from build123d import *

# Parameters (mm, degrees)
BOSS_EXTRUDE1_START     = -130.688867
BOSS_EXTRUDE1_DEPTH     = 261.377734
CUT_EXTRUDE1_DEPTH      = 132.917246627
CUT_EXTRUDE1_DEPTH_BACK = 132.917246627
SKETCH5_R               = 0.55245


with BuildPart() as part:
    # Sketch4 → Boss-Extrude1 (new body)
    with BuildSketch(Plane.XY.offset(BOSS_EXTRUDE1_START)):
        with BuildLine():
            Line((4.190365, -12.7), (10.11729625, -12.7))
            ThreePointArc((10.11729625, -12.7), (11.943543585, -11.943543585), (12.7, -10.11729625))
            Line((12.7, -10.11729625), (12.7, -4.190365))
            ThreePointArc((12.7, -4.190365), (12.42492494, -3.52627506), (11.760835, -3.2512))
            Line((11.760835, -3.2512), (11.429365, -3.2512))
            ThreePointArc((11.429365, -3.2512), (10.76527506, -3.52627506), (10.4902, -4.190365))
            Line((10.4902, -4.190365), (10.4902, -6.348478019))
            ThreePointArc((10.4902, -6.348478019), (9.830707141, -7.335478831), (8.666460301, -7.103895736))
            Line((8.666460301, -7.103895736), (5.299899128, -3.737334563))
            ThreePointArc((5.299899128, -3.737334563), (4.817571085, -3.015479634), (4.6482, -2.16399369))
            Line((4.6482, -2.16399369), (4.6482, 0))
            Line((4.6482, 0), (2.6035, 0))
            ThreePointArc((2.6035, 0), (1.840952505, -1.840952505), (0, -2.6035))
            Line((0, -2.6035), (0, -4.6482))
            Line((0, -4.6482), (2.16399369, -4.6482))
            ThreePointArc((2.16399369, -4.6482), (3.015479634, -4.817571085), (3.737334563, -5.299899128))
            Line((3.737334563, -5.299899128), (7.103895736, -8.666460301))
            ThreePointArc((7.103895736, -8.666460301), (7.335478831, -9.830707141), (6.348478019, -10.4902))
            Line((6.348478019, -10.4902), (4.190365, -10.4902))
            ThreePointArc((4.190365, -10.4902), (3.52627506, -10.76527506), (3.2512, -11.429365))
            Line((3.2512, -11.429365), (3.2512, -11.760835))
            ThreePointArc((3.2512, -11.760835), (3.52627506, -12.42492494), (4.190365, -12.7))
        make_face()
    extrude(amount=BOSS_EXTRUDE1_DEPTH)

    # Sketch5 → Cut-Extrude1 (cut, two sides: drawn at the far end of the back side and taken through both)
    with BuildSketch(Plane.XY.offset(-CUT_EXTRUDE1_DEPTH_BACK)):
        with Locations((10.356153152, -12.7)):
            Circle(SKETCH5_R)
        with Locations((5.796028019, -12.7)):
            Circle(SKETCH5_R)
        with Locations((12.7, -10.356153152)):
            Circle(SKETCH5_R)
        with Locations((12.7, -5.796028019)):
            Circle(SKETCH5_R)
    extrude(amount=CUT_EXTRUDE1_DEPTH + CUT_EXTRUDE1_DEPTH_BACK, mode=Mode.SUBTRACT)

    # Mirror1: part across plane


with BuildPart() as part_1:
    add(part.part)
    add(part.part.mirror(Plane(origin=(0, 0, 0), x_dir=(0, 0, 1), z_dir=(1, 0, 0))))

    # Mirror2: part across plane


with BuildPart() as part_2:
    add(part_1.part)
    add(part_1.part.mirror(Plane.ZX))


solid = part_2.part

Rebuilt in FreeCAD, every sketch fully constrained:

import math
import FreeCAD as App
import Part
import Sketcher
from FreeCAD import Vector
Q = App.Units.Quantity

doc = App.newDocument("Part")
params = doc.addObject("Spreadsheet::Sheet", "Params")
for row, (alias, value) in enumerate([
    ("pad1_length", "261.377734 mm"),
], start=1):
    params.set(f"A{row}", alias)
    params.set(f"B{row}", "=" + value)
    params.setAlias(f"B{row}", alias)

body = doc.addObject("PartDesign::Body", "Body")

# Sketch on XY plane
sketch1 = body.newObject("Sketcher::SketchObject", "Sketch")
sketch1.AttachmentSupport = (doc.getObject("XY_Plane"), [""])
sketch1.MapMode = "FlatFace"
sketch1.AttachmentOffset = App.Placement(Vector(0, 0, -130.688867), App.Rotation())
sketch1.addGeometry([
    Part.LineSegment(Vector(4.19, -12.7, 0), Vector(10.12, -12.7, 0)),  # 0
    Part.ArcOfCircle(Part.Circle(Vector(10.12, -10.12, 0), Vector(0, 0, 1), 2.58), math.radians(-90), math.radians(0)),  # 1
    Part.LineSegment(Vector(12.7, -10.12, 0), Vector(12.7, -4.19, 0)),  # 2
    Part.ArcOfCircle(Part.Circle(Vector(11.76, -4.19, 0), Vector(0, 0, 1), 0.94), math.radians(0), math.radians(90)),  # 3
    Part.LineSegment(Vector(11.76, -3.25, 0), Vector(11.43, -3.25, 0)),  # 4
    Part.ArcOfCircle(Part.Circle(Vector(11.43, -4.19, 0), Vector(0, 0, 1), 0.94), math.radians(90), math.radians(180)),  # 5
    Part.LineSegment(Vector(10.49, -4.19, 0), Vector(10.49, -6.35, 0)),  # 6
    Part.ArcOfCircle(Part.Circle(Vector(9.42, -6.35, 0), Vector(0, 0, 1), 1.07), math.radians(-135), math.radians(0)),  # 7
    Part.LineSegment(Vector(8.67, -7.1, 0), Vector(5.3, -3.74, 0)),  # 8
    Part.ArcOfCircle(Part.Circle(Vector(6.87, -2.16, 0), Vector(0, 0, 1), 2.23), math.radians(-180), math.radians(-135)),  # 9
    Part.LineSegment(Vector(4.65, -2.16, 0), Vector(4.65, 0, 0)),  # 10
    Part.LineSegment(Vector(4.65, 0, 0), Vector(2.6, 0, 0)),  # 11
    Part.ArcOfCircle(Part.Circle(Vector(0, 0, 0), Vector(0, 0, 1), 2.6), math.radians(-90), math.radians(0)),  # 12
    Part.LineSegment(Vector(0, -2.6, 0), Vector(0, -4.65, 0)),  # 13
    Part.LineSegment(Vector(0, -4.65, 0), Vector(2.16, -4.65, 0)),  # 14
    Part.ArcOfCircle(Part.Circle(Vector(2.16, -6.87, 0), Vector(0, 0, 1), 2.23), math.radians(45), math.radians(90)),  # 15
    Part.LineSegment(Vector(3.74, -5.3, 0), Vector(7.1, -8.67, 0)),  # 16
    Part.ArcOfCircle(Part.Circle(Vector(6.35, -9.42, 0), Vector(0, 0, 1), 1.07), math.radians(-90), math.radians(45)),  # 17
    Part.LineSegment(Vector(6.35, -10.49, 0), Vector(4.19, -10.49, 0)),  # 18
    Part.ArcOfCircle(Part.Circle(Vector(4.19, -11.43, 0), Vector(0, 0, 1), 0.94), math.radians(90), math.radians(180)),  # 19
    Part.LineSegment(Vector(3.25, -11.43, 0), Vector(3.25, -11.76, 0)),  # 20
    Part.ArcOfCircle(Part.Circle(Vector(4.19, -11.76, 0), Vector(0, 0, 1), 0.94), math.radians(-180), math.radians(-90)),  # 21
], False)
sketch1.addConstraint([
    Sketcher.Constraint("Tangent", 0, 2, 1, 1),
    Sketcher.Constraint("Tangent", 1, 2, 2, 1),
    Sketcher.Constraint("Tangent", 2, 2, 3, 1),
    Sketcher.Constraint("Tangent", 3, 2, 4, 1),
    Sketcher.Constraint("Tangent", 4, 2, 5, 1),
    Sketcher.Constraint("Tangent", 5, 2, 6, 1),
    Sketcher.Constraint("Tangent", 6, 2, 7, 2),
    Sketcher.Constraint("Tangent", 7, 1, 8, 1),
    Sketcher.Constraint("Tangent", 8, 2, 9, 2),
    Sketcher.Constraint("Tangent", 9, 1, 10, 1),
    Sketcher.Constraint("Coincident", 10, 2, 11, 1),
    Sketcher.Constraint("Coincident", 11, 2, 12, 2),
    Sketcher.Constraint("Coincident", 12, 1, 13, 1),
    Sketcher.Constraint("Coincident", 13, 2, 14, 1),
    Sketcher.Constraint("Tangent", 14, 2, 15, 2),
    Sketcher.Constraint("Tangent", 15, 1, 16, 1),
    Sketcher.Constraint("Tangent", 16, 2, 17, 2),
    Sketcher.Constraint("Tangent", 17, 1, 18, 1),
    Sketcher.Constraint("Tangent", 18, 2, 19, 1),
    Sketcher.Constraint("Tangent", 19, 2, 20, 1),
    Sketcher.Constraint("Tangent", 20, 2, 21, 1),
    Sketcher.Constraint("Tangent", 21, 2, 0, 1),
    Sketcher.Constraint("Horizontal", 0),
    Sketcher.Constraint("Vertical", 2),
    Sketcher.Constraint("Horizontal", 4),
    Sketcher.Constraint("Vertical", 6),
    Sketcher.Constraint("Vertical", 10),
    Sketcher.Constraint("Horizontal", 11),
    Sketcher.Constraint("Vertical", 13),
    Sketcher.Constraint("Horizontal", 14),
    Sketcher.Constraint("Horizontal", 18),
    Sketcher.Constraint("Vertical", 20),
    Sketcher.Constraint("Coincident", 12, 3, -1, 1),
    Sketcher.Constraint("Equal", 3, 5),
    Sketcher.Constraint("Equal", 9, 15),
    Sketcher.Constraint("Equal", 7, 17),
    Sketcher.Constraint("Equal", 5, 19),
    Sketcher.Constraint("Equal", 19, 21),
    Sketcher.Constraint("PointOnObject", 10, 2, -1),
    Sketcher.Constraint("PointOnObject", 12, 1, -2),
    Sketcher.Constraint("Parallel", 8, 16),
    Sketcher.Constraint("Equal", 0, 2),
    Sketcher.Constraint("Equal", 18, 6),
    Sketcher.Constraint("Equal", 14, 10),
    Sketcher.Constraint("Equal", 11, 13),
    Sketcher.Constraint("Equal", 4, 20),
    Sketcher.Constraint("Equal", 8, 16),
    Sketcher.Constraint("DistanceY", 0, 2, -1, 1, Q("0.5 in")),
    Sketcher.Constraint("Radius", 9, Q("0.0876 in")),
    Sketcher.Constraint("Radius", 12, Q("0.1025 in")),
    Sketcher.Constraint("DistanceX", 9, 1, 5, 2, Q("0.23 in")),
    Sketcher.Constraint("DistanceX", 11, 2, 11, 1, Q("0.0805 in")),
    Sketcher.Constraint("DistanceY", 3, 2, -1, 1, Q("0.128 in")),
    Sketcher.Constraint("Radius", 7, Q("1.068322 mm")),
    Sketcher.Constraint("DistanceX", 17, 3, 7, 3, Q("0.121 in")),
    Sketcher.Constraint("Radius", 1, Q("2.582704 mm")),
    Sketcher.Constraint("Radius", 3, Q("0.939165 mm")),
])
pad1 = body.newObject("PartDesign::Pad", "Pad")
pad1.Profile = sketch1
pad1.setExpression("Length", "Params.pad1_length")

# Sketch on XY plane
sketch2 = body.newObject("Sketcher::SketchObject", "Sketch001")
sketch2.AttachmentSupport = (doc.getObject("XY_Plane"), [""])
sketch2.MapMode = "FlatFace"
sketch2.addGeometry([
    Part.Circle(Vector(10.4, -12.7, 0), Vector(0, 0, 1), 0.6),
    Part.Circle(Vector(5.8, -12.7, 0), Vector(0, 0, 1), 0.6),
    Part.Circle(Vector(12.7, -10.4, 0), Vector(0, 0, 1), 0.6),
    Part.Circle(Vector(12.7, -5.8, 0), Vector(0, 0, 1), 0.6),
], False)
sketch2.addConstraint([
    Sketcher.Constraint("Equal", 0, 1),
    Sketcher.Constraint("Equal", 1, 2),
    Sketcher.Constraint("Equal", 2, 3),
    Sketcher.Constraint("Horizontal", 0, 3, 1, 3),
    Sketcher.Constraint("Vertical", 2, 3, 3, 3),
    Sketcher.Constraint("Diameter", 0, Q("0.0435 in")),
    Sketcher.Constraint("DistanceY", 0, 3, -1, 1, Q("0.5 in")),
    Sketcher.Constraint("DistanceX", -1, 1, 2, 3, Q("0.5 in")),
    Sketcher.Constraint("DistanceX", -1, 1, 1, 3, Q("5.796028 mm")),
    Sketcher.Constraint("DistanceY", 3, 3, -1, 1, Q("5.796028 mm")),
    Sketcher.Constraint("DistanceX", -1, 1, 0, 3, Q("10.356153 mm")),
    Sketcher.Constraint("DistanceY", 2, 3, -1, 1, Q("10.356153 mm")),
])
pocket1 = body.newObject("PartDesign::Pocket", "Pocket")
pocket1.Profile = sketch2
pocket1.Type = "ThroughAll"
pocket1.Midplane = True
body2 = doc.addObject("PartDesign::Body", "Body001")
doc.recompute()

body2.BaseFeature = body
doc.recompute()

mirroring = doc.addObject("Part::Mirroring", "Mirroring")
mirroring.Source = body
mirroring.Base = Vector(0, 0, 0)
mirroring.Normal = Vector(1, 0, 0)
body3 = doc.addObject("PartDesign::Body", "Body002")
body3.BaseFeature = mirroring
boolean = body2.newObject("PartDesign::Boolean", "Boolean")
boolean.Type = "Fuse"
boolean.addObjects([body3])
doc.recompute()
body4 = doc.addObject("PartDesign::Body", "Body003")
doc.recompute()

body4.BaseFeature = body2
doc.recompute()

mirroring2 = doc.addObject("Part::Mirroring", "Mirroring001")
mirroring2.Source = body2
mirroring2.Base = Vector(0, 0, 0)
mirroring2.Normal = Vector(0, 1, 0)
body5 = doc.addObject("PartDesign::Body", "Body004")
body5.BaseFeature = mirroring2
boolean2 = body4.newObject("PartDesign::Boolean", "Boolean001")
boolean2.Type = "Fuse"
boolean2.addObjects([body5])
doc.recompute()
mirroring.Visibility = False
mirroring2.Visibility = False

doc.recompute()
